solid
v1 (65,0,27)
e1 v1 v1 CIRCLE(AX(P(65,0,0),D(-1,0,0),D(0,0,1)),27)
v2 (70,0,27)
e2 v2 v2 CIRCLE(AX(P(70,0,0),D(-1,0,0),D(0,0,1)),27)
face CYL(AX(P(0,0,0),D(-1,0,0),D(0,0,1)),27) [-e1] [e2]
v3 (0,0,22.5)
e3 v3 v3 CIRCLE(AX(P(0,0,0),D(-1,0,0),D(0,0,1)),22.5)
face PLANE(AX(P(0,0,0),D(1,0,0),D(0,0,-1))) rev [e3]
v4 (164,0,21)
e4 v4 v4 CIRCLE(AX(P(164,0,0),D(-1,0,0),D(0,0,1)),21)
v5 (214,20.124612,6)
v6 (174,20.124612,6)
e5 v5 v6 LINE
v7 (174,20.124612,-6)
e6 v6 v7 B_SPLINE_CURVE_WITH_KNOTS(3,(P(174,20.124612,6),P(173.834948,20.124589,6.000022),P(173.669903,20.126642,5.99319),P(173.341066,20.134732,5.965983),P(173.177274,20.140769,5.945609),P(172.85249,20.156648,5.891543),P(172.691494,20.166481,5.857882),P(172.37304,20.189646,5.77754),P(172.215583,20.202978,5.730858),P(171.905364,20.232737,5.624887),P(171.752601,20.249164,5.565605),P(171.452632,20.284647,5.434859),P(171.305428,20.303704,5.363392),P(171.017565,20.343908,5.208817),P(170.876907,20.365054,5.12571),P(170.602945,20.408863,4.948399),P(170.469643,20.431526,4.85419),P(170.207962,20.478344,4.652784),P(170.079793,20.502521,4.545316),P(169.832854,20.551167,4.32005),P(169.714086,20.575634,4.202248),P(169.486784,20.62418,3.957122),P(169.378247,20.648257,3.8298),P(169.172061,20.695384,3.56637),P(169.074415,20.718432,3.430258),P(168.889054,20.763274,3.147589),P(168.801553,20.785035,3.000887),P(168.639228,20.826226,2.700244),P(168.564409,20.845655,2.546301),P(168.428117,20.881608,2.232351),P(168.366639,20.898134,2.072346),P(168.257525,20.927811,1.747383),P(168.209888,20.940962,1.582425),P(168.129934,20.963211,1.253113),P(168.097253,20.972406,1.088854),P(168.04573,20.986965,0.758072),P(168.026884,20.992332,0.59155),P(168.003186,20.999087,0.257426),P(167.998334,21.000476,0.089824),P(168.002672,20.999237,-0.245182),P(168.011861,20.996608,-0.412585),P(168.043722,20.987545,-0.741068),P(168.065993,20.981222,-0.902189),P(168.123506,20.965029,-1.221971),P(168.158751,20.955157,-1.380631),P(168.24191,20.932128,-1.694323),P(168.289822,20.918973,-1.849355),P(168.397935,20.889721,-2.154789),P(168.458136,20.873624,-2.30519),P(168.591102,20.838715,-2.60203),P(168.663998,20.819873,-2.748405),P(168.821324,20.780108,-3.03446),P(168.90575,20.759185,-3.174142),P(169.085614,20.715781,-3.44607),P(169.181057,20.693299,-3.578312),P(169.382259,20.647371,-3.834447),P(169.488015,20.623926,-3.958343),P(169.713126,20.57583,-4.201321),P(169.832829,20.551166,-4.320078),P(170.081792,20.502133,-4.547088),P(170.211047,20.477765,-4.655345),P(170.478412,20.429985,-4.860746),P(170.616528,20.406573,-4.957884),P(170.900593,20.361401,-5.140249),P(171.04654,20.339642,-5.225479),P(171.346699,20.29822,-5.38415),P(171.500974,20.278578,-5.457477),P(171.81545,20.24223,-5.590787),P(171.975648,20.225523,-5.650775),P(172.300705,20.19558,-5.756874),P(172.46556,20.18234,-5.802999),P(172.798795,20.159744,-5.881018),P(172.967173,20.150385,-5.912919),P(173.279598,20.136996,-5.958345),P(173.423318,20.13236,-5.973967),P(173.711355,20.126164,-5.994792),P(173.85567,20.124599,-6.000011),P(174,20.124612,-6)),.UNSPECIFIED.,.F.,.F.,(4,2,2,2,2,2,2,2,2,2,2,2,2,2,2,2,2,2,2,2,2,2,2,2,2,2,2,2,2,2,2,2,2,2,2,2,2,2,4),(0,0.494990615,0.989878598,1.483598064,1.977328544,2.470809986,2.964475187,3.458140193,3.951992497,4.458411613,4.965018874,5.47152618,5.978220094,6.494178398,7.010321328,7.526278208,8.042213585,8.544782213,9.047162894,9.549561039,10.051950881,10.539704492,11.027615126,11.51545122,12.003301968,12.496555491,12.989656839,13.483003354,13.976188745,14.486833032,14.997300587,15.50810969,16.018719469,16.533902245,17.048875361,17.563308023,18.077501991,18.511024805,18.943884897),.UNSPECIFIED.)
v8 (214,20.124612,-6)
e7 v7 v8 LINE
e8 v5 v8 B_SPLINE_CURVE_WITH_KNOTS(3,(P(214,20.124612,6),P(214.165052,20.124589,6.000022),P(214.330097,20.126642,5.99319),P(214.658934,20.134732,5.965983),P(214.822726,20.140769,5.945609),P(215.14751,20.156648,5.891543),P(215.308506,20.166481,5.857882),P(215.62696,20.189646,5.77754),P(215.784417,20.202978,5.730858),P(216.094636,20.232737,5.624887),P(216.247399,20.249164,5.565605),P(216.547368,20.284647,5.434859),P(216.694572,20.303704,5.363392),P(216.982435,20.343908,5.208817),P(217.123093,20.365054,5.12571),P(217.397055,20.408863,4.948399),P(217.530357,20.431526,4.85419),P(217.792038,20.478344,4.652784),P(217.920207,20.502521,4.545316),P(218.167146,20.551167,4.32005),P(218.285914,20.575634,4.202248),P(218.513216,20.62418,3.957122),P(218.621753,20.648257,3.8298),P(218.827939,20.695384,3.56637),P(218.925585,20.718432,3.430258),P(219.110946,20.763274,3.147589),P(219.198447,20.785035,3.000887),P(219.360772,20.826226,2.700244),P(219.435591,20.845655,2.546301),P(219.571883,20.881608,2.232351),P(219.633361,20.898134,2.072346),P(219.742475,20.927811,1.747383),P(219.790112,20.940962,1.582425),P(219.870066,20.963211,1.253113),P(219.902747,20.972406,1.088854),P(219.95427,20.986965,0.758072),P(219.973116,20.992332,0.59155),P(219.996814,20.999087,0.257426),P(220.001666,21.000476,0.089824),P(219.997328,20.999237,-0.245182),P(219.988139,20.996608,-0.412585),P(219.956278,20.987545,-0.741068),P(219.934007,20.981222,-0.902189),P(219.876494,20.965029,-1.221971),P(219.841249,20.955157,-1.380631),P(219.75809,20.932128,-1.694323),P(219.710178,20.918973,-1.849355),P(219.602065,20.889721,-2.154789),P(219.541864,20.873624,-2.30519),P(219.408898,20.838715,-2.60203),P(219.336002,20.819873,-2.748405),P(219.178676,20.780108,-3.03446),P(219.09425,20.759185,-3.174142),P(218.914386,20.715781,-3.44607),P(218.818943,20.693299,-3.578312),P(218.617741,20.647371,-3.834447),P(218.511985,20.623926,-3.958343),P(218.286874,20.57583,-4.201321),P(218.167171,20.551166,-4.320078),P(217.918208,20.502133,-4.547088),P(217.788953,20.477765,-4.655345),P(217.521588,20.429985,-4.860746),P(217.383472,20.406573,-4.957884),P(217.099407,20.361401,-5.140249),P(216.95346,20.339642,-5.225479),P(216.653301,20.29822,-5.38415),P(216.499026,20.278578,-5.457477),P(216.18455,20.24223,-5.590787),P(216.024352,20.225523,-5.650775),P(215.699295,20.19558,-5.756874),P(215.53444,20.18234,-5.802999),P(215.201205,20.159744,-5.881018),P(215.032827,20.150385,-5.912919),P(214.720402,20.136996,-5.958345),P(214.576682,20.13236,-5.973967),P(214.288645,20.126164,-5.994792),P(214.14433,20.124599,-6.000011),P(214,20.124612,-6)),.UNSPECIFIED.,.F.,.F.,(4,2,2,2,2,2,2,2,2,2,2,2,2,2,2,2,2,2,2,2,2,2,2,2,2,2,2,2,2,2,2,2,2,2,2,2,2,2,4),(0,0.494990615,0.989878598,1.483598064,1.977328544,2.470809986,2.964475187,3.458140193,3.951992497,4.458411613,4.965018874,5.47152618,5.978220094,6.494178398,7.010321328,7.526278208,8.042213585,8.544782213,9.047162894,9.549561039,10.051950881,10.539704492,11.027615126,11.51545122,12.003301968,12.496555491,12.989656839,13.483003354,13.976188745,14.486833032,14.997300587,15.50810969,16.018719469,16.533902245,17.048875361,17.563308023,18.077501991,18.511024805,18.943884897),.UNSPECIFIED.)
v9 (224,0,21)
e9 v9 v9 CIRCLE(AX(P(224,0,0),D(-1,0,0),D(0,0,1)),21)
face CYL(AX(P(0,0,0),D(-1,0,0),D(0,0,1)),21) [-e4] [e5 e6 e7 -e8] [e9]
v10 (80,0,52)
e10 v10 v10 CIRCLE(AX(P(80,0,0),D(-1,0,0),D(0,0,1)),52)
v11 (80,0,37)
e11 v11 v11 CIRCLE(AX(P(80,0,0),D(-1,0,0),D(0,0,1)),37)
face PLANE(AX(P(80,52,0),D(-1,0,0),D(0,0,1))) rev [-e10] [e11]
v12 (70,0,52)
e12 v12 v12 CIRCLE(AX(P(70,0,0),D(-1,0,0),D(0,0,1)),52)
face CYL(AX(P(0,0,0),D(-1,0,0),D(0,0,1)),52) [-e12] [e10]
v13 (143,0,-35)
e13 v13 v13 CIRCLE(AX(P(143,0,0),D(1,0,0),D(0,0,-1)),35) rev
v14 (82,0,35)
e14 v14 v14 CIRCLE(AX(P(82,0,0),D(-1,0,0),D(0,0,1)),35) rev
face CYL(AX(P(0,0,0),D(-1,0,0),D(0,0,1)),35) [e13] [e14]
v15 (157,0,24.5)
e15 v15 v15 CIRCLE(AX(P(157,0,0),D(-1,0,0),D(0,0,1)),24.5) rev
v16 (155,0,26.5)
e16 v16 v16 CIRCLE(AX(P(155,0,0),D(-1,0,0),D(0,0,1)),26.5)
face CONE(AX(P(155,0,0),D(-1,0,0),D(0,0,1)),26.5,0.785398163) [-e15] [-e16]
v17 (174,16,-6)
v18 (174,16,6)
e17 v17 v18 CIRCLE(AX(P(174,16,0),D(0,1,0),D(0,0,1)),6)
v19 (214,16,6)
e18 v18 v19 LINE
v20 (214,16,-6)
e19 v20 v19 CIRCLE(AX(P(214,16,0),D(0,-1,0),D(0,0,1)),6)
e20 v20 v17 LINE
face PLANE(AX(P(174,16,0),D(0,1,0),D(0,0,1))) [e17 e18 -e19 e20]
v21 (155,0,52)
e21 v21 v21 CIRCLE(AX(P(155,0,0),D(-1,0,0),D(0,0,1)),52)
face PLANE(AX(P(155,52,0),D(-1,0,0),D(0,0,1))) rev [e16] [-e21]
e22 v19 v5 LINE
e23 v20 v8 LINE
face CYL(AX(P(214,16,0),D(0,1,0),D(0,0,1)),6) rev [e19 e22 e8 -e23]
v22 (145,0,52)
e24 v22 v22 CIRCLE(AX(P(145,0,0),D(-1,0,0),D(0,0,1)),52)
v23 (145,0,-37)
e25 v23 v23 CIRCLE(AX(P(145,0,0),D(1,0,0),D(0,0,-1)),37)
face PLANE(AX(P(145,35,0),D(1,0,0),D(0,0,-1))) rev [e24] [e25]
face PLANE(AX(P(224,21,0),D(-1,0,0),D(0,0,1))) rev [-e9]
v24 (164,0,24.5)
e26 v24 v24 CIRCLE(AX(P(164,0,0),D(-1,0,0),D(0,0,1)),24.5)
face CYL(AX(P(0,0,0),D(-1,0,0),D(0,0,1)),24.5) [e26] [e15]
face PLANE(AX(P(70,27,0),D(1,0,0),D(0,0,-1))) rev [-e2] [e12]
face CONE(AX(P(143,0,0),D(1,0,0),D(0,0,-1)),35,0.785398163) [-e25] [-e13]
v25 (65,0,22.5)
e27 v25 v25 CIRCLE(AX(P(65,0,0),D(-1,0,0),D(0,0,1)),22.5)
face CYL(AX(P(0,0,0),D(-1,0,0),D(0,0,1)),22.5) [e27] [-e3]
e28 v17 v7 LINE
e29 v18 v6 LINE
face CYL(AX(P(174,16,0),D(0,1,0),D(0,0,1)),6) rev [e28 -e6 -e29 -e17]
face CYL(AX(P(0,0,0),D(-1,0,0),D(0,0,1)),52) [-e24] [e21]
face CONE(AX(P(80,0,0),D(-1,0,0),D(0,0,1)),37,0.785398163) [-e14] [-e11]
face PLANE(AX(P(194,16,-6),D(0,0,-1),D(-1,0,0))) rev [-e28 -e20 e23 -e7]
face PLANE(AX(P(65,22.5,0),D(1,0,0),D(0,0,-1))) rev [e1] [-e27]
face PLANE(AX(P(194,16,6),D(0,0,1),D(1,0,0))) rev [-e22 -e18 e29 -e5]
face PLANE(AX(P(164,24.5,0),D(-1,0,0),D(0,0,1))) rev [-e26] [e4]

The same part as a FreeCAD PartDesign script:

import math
import FreeCAD as App
import Part
import Sketcher
from FreeCAD import Vector
Q = App.Units.Quantity


def edges_at(feature, points):
    """Names of the edges that pass closest to the given points."""
    edges = feature.Shape.Edges
    near = lambda p: min(range(len(edges)), key=lambda i: edges[i].distToShape(Part.Vertex(*p))[0])
    return sorted({f"Edge{near(p) + 1}" for p in points})

doc = App.newDocument("Part")
body = doc.addObject("PartDesign::Body", "Body")

# Sketch on XY plane
sketch1 = doc.addObject("Sketcher::SketchObject", "Sketch")
body.addObject(sketch1)
sketch1.AttachmentSupport = (doc.XY_Plane, [""])
sketch1.MapMode = "FlatFace"
sketch1.addGeometry([
    Part.LineSegment(Vector(0, 22.5, 0), Vector(0, 0, 0)),  # 0
    Part.LineSegment(Vector(0, 0, 0), Vector(224, 0, 0)),  # 1
    Part.LineSegment(Vector(224, 0, 0), Vector(224, 21, 0)),  # 2
    Part.LineSegment(Vector(224, 21, 0), Vector(164, 21, 0)),  # 3
    Part.LineSegment(Vector(164, 21, 0), Vector(164, 24.5, 0)),  # 4
    Part.LineSegment(Vector(164, 24.5, 0), Vector(155, 24.5, 0)),  # 5
    Part.LineSegment(Vector(155, 24.5, 0), Vector(155, 52, 0)),  # 6
    Part.LineSegment(Vector(155, 52, 0), Vector(145, 52, 0)),  # 7
    Part.LineSegment(Vector(145, 52, 0), Vector(145, 35, 0)),  # 8
    Part.LineSegment(Vector(145, 35, 0), Vector(80, 35, 0)),  # 9
    Part.LineSegment(Vector(80, 35, 0), Vector(80, 52, 0)),  # 10
    Part.LineSegment(Vector(80, 52, 0), Vector(70, 52, 0)),  # 11
    Part.LineSegment(Vector(70, 52, 0), Vector(70, 27, 0)),  # 12
    Part.LineSegment(Vector(70, 27, 0), Vector(65, 27, 0)),  # 13
    Part.LineSegment(Vector(65, 27, 0), Vector(65, 22.5, 0)),  # 14
    Part.LineSegment(Vector(65, 22.5, 0), Vector(0, 22.5, 0)),  # 15
], False)
sketch1.addConstraint([
    Sketcher.Constraint("Coincident", 0, 2, 1, 1),
    Sketcher.Constraint("Coincident", 1, 2, 2, 1),
    Sketcher.Constraint("Coincident", 2, 2, 3, 1),
    Sketcher.Constraint("Coincident", 3, 2, 4, 1),
    Sketcher.Constraint("Coincident", 4, 2, 5, 1),
    Sketcher.Constraint("Coincident", 5, 2, 6, 1),
    Sketcher.Constraint("Coincident", 6, 2, 7, 1),
    Sketcher.Constraint("Coincident", 7, 2, 8, 1),
    Sketcher.Constraint("Coincident", 8, 2, 9, 1),
    Sketcher.Constraint("Coincident", 9, 2, 10, 1),
    Sketcher.Constraint("Coincident", 10, 2, 11, 1),
    Sketcher.Constraint("Coincident", 11, 2, 12, 1),
    Sketcher.Constraint("Coincident", 12, 2, 13, 1),
    Sketcher.Constraint("Coincident", 13, 2, 14, 1),
    Sketcher.Constraint("Coincident", 14, 2, 15, 1),
    Sketcher.Constraint("Coincident", 15, 2, 0, 1),
    Sketcher.Constraint("Vertical", 0),
    Sketcher.Constraint("Horizontal", 1),
    Sketcher.Constraint("Vertical", 2),
    Sketcher.Constraint("Horizontal", 3),
    Sketcher.Constraint("Vertical", 4),
    Sketcher.Constraint("Horizontal", 5),
    Sketcher.Constraint("Vertical", 6),
    Sketcher.Constraint("Horizontal", 7),
    Sketcher.Constraint("Vertical", 8),
    Sketcher.Constraint("Horizontal", 9),
    Sketcher.Constraint("Vertical", 10),
    Sketcher.Constraint("Horizontal", 11),
    Sketcher.Constraint("Vertical", 12),
    Sketcher.Constraint("Horizontal", 13),
    Sketcher.Constraint("Vertical", 14),
    Sketcher.Constraint("Horizontal", 15),
    Sketcher.Constraint("Coincident", 0, 2, -1, 1),
    Sketcher.Constraint("Horizontal", 7, 2, 10, 2),
    Sketcher.Constraint("Equal", 7, 11),
    Sketcher.Constraint("Equal", 9, 15),
    Sketcher.Constraint("DistanceX", 1, 1, 1, 2, Q("224 mm")),
    Sketcher.Constraint("DistanceX", 3, 2, 3, 1, Q("60 mm")),
    Sketcher.Constraint("DistanceX", 5, 2, 5, 1, Q("9 mm")),
    Sketcher.Constraint("DistanceX", 7, 2, 7, 1, Q("10 mm")),
    Sketcher.Constraint("DistanceX", 9, 2, 9, 1, Q("65 mm")),
    Sketcher.Constraint("DistanceY", 2, 1, 2, 2, Q("21 mm")),
    Sketcher.Constraint("DistanceY", 8, 2, 8, 1, Q("17 mm")),
    Sketcher.Constraint("DistanceY", 12, 2, 12, 1, Q("25 mm")),
    Sketcher.Constraint("DistanceY", 0, 2, 0, 1, Q("22.5 mm")),
    Sketcher.Constraint("DistanceY", 4, 1, 4, 2, Q("3.5 mm")),
    Sketcher.Constraint("DistanceY", 6, 1, 6, 2, Q("27.5 mm")),
])
revolution = doc.addObject("PartDesign::Revolution", "Revolution")
body.addObject(revolution)
revolution.Profile = sketch1
revolution.ReferenceAxis = (sketch1, ["H_Axis"])
revolution.Angle = 360
doc.recompute()

chamfer = doc.addObject("PartDesign::Chamfer", "Chamfer")
body.addObject(chamfer)
chamfer.Base = (revolution, edges_at(revolution, [(155, -24.5, 0), (145, -35, 0), (80, -35, 0)]))
chamfer.Size = 2

# Sketch on XZ plane
sketch2 = doc.addObject("Sketcher::SketchObject", "Sketch001")
body.addObject(sketch2)
sketch2.AttachmentSupport = (doc.XZ_Plane, [""])
sketch2.MapMode = "FlatFace"
sketch2.AttachmentOffset = App.Placement(Vector(0, 0, -21), App.Rotation())
sketch2.addGeometry([
    Part.LineSegment(Vector(194, 6, 0), Vector(194, -6, 0)),
    Part.LineSegment(Vector(194, -6, 0), Vector(174, -6, 0)),
    Part.ArcOfCircle(Part.Circle(Vector(174, 0, 0), Vector(0, 0, 1), 6), math.radians(90), math.radians(270)),
    Part.LineSegment(Vector(174, 6, 0), Vector(194, 6, 0)),
], False)
sketch2.addConstraint([
    Sketcher.Constraint("Coincident", 0, 2, 1, 1),
    Sketcher.Constraint("Tangent", 1, 2, 2, 2),
    Sketcher.Constraint("Tangent", 2, 1, 3, 1),
    Sketcher.Constraint("Coincident", 3, 2, 0, 1),
    Sketcher.Constraint("Vertical", 0),
    Sketcher.Constraint("Horizontal", 1),
    Sketcher.Constraint("Horizontal", 3),
    Sketcher.Constraint("PointOnObject", 2, 3, -1),
    Sketcher.Constraint("Radius", 2, Q("6 mm")),
    Sketcher.Constraint("DistanceX", 1, 2, 1, 1, Q("20 mm")),
    Sketcher.Constraint("DistanceX", -1, 1, 2, 3, Q("174 mm")),
])
pocket1 = doc.addObject("PartDesign::Pocket", "Pocket")
body.addObject(pocket1)
pocket1.Profile = sketch2
pocket1.Length = 5
pocket1.Reversed = True
doc.recompute()

datumplane = doc.addObject("PartDesign::Plane", "DatumPlane")
body.addObject(datumplane)
datumplane.AttachmentSupport = (doc.YZ_Plane, [""])
datumplane.MapMode = "FlatFace"
datumplane.AttachmentOffset = App.Placement(Vector(0, 0, 194), App.Rotation())
mirrored = doc.addObject("PartDesign::Mirrored", "Mirrored")
body.addObject(mirrored)
mirrored.Originals = [pocket1]
mirrored.MirrorPlane = (datumplane, [""])
body.Tip = mirrored

doc.recompute()
